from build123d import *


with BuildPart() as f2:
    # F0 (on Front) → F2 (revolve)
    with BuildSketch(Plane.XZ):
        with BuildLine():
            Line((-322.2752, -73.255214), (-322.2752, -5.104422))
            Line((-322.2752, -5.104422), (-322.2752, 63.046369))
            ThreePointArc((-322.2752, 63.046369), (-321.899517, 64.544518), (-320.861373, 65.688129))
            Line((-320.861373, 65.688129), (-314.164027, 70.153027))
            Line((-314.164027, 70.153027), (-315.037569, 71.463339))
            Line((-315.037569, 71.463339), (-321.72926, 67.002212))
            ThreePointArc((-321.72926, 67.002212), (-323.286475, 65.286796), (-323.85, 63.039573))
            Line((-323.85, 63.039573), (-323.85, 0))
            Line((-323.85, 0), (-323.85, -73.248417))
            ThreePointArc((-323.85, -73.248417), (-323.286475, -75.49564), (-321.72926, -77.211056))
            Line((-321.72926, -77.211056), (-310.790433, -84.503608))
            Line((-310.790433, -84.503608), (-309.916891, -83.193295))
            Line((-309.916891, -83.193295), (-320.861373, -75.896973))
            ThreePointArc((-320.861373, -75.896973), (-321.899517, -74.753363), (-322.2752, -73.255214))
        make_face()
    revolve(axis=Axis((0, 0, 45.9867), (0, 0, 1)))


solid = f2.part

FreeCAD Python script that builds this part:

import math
import FreeCAD as App
import Part
import Sketcher
from FreeCAD import Vector
Q = App.Units.Quantity

doc = App.newDocument("Part")
body = doc.addObject("PartDesign::Body", "Body")

sketch1 = body.newObject("Sketcher::SketchObject", "Sketch")
sketch1.AttachmentSupport = (doc.getObject("XZ_Plane"), [""])
sketch1.MapMode = "FlatFace"
sketch1.addGeometry(Part.LineSegment(Vector(-322.3, -73.3, 0), Vector(-322.3, 63, 0)), False)
sketch1.addGeometry(Part.ArcOfCircle(Part.Circle(Vector(-319.1, 63, 0), Vector(0, 0, 1), 3.2), math.radians(124), math.radians(180)), False)
sketch1.addGeometry(Part.LineSegment(Vector(-320.9, 65.7, 0), Vector(-314.2, 70.2, 0)), False)
sketch1.addGeometry(Part.LineSegment(Vector(-314.2, 70.2, 0), Vector(-315, 71.5, 0)), False)
sketch1.addGeometry(Part.LineSegment(Vector(-315, 71.5, 0), Vector(-321.7, 67, 0)), False)
sketch1.addGeometry(Part.ArcOfCircle(Part.Circle(Vector(-319.1, 63, 0), Vector(0, 0, 1), 4.8), math.radians(124), math.radians(180)), False)
sketch1.addGeometry(Part.LineSegment(Vector(-323.9, 63, 0), Vector(-323.9, -73.2, 0)), False)
sketch1.addGeometry(Part.ArcOfCircle(Part.Circle(Vector(-319.1, -73.2, 0), Vector(0, 0, 1), 4.8), math.radians(-180), math.radians(-124)), False)
sketch1.addGeometry(Part.LineSegment(Vector(-321.7, -77.2, 0), Vector(-310.8, -84.5, 0)), False)
sketch1.addGeometry(Part.LineSegment(Vector(-310.8, -84.5, 0), Vector(-309.9, -83.2, 0)), False)
sketch1.addGeometry(Part.LineSegment(Vector(-309.9, -83.2, 0), Vector(-320.9, -75.9, 0)), False)
sketch1.addGeometry(Part.ArcOfCircle(Part.Circle(Vector(-319.1, -73.3, 0), Vector(0, 0, 1), 3.2), math.radians(180), math.radians(236)), False)
sketch1.addConstraint(Sketcher.Constraint("Tangent", 0, 2, 1, 2))
sketch1.addConstraint(Sketcher.Constraint("Tangent", 1, 1, 2, 1))
sketch1.addConstraint(Sketcher.Constraint("Coincident", 2, 2, 3, 1))
sketch1.addConstraint(Sketcher.Constraint("Coincident", 3, 2, 4, 1))
sketch1.addConstraint(Sketcher.Constraint("Tangent", 4, 2, 5, 1))
sketch1.addConstraint(Sketcher.Constraint("Tangent", 5, 2, 6, 1))
sketch1.addConstraint(Sketcher.Constraint("Tangent", 6, 2, 7, 1))
sketch1.addConstraint(Sketcher.Constraint("Tangent", 7, 2, 8, 1))
sketch1.addConstraint(Sketcher.Constraint("Coincident", 8, 2, 9, 1))
sketch1.addConstraint(Sketcher.Constraint("Coincident", 9, 2, 10, 1))
sketch1.addConstraint(Sketcher.Constraint("Tangent", 10, 2, 11, 2))
sketch1.addConstraint(Sketcher.Constraint("Tangent", 11, 1, 0, 1))
sketch1.addConstraint(Sketcher.Constraint("Vertical", 0))
sketch1.addConstraint(Sketcher.Constraint("Vertical", 6))
sketch1.addConstraint(Sketcher.Constraint("Equal", 5, 7))
sketch1.addConstraint(Sketcher.Constraint("Perpendicular", 2, 3))
sketch1.addConstraint(Sketcher.Constraint("Perpendicular", 3, 4))
sketch1.addConstraint(Sketcher.Constraint("Perpendicular", 8, 9))
sketch1.addConstraint(Sketcher.Constraint("Perpendicular", 9, 10))
sketch1.addConstraint(Sketcher.Constraint("Vertical", 4, 2, 7, 2))
sketch1.addConstraint(Sketcher.Constraint("Vertical", 1, 1, 10, 2))
sketch1.addConstraint(Sketcher.Constraint("Equal", 3, 9))
sketch1.addConstraint(Sketcher.Constraint("Radius", 1, Q("0.125 in")))
sketch1.addConstraint(Sketcher.Constraint("Radius", 5, Q("0.1875001 in")))
sketch1.addConstraint(Sketcher.Constraint("DistanceX", 5, 2, -1, 1, Q("12.75 in")))
sketch1.addConstraint(Sketcher.Constraint("Distance", 3, Q("0.062 in")))
sketch1.addConstraint(Sketcher.Constraint("DistanceX", 1, 3, -1, 1, Q("12.563 in")))
sketch1.addConstraint(Sketcher.Constraint("DistanceY", 6, 2, 6, 1, Q("136.28799 mm")))
sketch1.addConstraint(Sketcher.Constraint("DistanceY", 1, 1, 2, 2, Q("4.464898 mm")))
sketch1.addConstraint(Sketcher.Constraint("Distance", 2, Q("8.049209 mm")))
sketch1.addConstraint(Sketcher.Constraint("Distance", 10, Q("13.153631 mm")))
sketch1.addConstraint(Sketcher.Constraint("DistanceY", -1, 1, 1, 3, Q("63.046369 mm")))
revolution = body.newObject("PartDesign::Revolution", "Revolution")
revolution.Profile = sketch1
revolution.ReferenceAxis = (sketch1, ["V_Axis"])
revolution.Angle = 360

doc.recompute()
